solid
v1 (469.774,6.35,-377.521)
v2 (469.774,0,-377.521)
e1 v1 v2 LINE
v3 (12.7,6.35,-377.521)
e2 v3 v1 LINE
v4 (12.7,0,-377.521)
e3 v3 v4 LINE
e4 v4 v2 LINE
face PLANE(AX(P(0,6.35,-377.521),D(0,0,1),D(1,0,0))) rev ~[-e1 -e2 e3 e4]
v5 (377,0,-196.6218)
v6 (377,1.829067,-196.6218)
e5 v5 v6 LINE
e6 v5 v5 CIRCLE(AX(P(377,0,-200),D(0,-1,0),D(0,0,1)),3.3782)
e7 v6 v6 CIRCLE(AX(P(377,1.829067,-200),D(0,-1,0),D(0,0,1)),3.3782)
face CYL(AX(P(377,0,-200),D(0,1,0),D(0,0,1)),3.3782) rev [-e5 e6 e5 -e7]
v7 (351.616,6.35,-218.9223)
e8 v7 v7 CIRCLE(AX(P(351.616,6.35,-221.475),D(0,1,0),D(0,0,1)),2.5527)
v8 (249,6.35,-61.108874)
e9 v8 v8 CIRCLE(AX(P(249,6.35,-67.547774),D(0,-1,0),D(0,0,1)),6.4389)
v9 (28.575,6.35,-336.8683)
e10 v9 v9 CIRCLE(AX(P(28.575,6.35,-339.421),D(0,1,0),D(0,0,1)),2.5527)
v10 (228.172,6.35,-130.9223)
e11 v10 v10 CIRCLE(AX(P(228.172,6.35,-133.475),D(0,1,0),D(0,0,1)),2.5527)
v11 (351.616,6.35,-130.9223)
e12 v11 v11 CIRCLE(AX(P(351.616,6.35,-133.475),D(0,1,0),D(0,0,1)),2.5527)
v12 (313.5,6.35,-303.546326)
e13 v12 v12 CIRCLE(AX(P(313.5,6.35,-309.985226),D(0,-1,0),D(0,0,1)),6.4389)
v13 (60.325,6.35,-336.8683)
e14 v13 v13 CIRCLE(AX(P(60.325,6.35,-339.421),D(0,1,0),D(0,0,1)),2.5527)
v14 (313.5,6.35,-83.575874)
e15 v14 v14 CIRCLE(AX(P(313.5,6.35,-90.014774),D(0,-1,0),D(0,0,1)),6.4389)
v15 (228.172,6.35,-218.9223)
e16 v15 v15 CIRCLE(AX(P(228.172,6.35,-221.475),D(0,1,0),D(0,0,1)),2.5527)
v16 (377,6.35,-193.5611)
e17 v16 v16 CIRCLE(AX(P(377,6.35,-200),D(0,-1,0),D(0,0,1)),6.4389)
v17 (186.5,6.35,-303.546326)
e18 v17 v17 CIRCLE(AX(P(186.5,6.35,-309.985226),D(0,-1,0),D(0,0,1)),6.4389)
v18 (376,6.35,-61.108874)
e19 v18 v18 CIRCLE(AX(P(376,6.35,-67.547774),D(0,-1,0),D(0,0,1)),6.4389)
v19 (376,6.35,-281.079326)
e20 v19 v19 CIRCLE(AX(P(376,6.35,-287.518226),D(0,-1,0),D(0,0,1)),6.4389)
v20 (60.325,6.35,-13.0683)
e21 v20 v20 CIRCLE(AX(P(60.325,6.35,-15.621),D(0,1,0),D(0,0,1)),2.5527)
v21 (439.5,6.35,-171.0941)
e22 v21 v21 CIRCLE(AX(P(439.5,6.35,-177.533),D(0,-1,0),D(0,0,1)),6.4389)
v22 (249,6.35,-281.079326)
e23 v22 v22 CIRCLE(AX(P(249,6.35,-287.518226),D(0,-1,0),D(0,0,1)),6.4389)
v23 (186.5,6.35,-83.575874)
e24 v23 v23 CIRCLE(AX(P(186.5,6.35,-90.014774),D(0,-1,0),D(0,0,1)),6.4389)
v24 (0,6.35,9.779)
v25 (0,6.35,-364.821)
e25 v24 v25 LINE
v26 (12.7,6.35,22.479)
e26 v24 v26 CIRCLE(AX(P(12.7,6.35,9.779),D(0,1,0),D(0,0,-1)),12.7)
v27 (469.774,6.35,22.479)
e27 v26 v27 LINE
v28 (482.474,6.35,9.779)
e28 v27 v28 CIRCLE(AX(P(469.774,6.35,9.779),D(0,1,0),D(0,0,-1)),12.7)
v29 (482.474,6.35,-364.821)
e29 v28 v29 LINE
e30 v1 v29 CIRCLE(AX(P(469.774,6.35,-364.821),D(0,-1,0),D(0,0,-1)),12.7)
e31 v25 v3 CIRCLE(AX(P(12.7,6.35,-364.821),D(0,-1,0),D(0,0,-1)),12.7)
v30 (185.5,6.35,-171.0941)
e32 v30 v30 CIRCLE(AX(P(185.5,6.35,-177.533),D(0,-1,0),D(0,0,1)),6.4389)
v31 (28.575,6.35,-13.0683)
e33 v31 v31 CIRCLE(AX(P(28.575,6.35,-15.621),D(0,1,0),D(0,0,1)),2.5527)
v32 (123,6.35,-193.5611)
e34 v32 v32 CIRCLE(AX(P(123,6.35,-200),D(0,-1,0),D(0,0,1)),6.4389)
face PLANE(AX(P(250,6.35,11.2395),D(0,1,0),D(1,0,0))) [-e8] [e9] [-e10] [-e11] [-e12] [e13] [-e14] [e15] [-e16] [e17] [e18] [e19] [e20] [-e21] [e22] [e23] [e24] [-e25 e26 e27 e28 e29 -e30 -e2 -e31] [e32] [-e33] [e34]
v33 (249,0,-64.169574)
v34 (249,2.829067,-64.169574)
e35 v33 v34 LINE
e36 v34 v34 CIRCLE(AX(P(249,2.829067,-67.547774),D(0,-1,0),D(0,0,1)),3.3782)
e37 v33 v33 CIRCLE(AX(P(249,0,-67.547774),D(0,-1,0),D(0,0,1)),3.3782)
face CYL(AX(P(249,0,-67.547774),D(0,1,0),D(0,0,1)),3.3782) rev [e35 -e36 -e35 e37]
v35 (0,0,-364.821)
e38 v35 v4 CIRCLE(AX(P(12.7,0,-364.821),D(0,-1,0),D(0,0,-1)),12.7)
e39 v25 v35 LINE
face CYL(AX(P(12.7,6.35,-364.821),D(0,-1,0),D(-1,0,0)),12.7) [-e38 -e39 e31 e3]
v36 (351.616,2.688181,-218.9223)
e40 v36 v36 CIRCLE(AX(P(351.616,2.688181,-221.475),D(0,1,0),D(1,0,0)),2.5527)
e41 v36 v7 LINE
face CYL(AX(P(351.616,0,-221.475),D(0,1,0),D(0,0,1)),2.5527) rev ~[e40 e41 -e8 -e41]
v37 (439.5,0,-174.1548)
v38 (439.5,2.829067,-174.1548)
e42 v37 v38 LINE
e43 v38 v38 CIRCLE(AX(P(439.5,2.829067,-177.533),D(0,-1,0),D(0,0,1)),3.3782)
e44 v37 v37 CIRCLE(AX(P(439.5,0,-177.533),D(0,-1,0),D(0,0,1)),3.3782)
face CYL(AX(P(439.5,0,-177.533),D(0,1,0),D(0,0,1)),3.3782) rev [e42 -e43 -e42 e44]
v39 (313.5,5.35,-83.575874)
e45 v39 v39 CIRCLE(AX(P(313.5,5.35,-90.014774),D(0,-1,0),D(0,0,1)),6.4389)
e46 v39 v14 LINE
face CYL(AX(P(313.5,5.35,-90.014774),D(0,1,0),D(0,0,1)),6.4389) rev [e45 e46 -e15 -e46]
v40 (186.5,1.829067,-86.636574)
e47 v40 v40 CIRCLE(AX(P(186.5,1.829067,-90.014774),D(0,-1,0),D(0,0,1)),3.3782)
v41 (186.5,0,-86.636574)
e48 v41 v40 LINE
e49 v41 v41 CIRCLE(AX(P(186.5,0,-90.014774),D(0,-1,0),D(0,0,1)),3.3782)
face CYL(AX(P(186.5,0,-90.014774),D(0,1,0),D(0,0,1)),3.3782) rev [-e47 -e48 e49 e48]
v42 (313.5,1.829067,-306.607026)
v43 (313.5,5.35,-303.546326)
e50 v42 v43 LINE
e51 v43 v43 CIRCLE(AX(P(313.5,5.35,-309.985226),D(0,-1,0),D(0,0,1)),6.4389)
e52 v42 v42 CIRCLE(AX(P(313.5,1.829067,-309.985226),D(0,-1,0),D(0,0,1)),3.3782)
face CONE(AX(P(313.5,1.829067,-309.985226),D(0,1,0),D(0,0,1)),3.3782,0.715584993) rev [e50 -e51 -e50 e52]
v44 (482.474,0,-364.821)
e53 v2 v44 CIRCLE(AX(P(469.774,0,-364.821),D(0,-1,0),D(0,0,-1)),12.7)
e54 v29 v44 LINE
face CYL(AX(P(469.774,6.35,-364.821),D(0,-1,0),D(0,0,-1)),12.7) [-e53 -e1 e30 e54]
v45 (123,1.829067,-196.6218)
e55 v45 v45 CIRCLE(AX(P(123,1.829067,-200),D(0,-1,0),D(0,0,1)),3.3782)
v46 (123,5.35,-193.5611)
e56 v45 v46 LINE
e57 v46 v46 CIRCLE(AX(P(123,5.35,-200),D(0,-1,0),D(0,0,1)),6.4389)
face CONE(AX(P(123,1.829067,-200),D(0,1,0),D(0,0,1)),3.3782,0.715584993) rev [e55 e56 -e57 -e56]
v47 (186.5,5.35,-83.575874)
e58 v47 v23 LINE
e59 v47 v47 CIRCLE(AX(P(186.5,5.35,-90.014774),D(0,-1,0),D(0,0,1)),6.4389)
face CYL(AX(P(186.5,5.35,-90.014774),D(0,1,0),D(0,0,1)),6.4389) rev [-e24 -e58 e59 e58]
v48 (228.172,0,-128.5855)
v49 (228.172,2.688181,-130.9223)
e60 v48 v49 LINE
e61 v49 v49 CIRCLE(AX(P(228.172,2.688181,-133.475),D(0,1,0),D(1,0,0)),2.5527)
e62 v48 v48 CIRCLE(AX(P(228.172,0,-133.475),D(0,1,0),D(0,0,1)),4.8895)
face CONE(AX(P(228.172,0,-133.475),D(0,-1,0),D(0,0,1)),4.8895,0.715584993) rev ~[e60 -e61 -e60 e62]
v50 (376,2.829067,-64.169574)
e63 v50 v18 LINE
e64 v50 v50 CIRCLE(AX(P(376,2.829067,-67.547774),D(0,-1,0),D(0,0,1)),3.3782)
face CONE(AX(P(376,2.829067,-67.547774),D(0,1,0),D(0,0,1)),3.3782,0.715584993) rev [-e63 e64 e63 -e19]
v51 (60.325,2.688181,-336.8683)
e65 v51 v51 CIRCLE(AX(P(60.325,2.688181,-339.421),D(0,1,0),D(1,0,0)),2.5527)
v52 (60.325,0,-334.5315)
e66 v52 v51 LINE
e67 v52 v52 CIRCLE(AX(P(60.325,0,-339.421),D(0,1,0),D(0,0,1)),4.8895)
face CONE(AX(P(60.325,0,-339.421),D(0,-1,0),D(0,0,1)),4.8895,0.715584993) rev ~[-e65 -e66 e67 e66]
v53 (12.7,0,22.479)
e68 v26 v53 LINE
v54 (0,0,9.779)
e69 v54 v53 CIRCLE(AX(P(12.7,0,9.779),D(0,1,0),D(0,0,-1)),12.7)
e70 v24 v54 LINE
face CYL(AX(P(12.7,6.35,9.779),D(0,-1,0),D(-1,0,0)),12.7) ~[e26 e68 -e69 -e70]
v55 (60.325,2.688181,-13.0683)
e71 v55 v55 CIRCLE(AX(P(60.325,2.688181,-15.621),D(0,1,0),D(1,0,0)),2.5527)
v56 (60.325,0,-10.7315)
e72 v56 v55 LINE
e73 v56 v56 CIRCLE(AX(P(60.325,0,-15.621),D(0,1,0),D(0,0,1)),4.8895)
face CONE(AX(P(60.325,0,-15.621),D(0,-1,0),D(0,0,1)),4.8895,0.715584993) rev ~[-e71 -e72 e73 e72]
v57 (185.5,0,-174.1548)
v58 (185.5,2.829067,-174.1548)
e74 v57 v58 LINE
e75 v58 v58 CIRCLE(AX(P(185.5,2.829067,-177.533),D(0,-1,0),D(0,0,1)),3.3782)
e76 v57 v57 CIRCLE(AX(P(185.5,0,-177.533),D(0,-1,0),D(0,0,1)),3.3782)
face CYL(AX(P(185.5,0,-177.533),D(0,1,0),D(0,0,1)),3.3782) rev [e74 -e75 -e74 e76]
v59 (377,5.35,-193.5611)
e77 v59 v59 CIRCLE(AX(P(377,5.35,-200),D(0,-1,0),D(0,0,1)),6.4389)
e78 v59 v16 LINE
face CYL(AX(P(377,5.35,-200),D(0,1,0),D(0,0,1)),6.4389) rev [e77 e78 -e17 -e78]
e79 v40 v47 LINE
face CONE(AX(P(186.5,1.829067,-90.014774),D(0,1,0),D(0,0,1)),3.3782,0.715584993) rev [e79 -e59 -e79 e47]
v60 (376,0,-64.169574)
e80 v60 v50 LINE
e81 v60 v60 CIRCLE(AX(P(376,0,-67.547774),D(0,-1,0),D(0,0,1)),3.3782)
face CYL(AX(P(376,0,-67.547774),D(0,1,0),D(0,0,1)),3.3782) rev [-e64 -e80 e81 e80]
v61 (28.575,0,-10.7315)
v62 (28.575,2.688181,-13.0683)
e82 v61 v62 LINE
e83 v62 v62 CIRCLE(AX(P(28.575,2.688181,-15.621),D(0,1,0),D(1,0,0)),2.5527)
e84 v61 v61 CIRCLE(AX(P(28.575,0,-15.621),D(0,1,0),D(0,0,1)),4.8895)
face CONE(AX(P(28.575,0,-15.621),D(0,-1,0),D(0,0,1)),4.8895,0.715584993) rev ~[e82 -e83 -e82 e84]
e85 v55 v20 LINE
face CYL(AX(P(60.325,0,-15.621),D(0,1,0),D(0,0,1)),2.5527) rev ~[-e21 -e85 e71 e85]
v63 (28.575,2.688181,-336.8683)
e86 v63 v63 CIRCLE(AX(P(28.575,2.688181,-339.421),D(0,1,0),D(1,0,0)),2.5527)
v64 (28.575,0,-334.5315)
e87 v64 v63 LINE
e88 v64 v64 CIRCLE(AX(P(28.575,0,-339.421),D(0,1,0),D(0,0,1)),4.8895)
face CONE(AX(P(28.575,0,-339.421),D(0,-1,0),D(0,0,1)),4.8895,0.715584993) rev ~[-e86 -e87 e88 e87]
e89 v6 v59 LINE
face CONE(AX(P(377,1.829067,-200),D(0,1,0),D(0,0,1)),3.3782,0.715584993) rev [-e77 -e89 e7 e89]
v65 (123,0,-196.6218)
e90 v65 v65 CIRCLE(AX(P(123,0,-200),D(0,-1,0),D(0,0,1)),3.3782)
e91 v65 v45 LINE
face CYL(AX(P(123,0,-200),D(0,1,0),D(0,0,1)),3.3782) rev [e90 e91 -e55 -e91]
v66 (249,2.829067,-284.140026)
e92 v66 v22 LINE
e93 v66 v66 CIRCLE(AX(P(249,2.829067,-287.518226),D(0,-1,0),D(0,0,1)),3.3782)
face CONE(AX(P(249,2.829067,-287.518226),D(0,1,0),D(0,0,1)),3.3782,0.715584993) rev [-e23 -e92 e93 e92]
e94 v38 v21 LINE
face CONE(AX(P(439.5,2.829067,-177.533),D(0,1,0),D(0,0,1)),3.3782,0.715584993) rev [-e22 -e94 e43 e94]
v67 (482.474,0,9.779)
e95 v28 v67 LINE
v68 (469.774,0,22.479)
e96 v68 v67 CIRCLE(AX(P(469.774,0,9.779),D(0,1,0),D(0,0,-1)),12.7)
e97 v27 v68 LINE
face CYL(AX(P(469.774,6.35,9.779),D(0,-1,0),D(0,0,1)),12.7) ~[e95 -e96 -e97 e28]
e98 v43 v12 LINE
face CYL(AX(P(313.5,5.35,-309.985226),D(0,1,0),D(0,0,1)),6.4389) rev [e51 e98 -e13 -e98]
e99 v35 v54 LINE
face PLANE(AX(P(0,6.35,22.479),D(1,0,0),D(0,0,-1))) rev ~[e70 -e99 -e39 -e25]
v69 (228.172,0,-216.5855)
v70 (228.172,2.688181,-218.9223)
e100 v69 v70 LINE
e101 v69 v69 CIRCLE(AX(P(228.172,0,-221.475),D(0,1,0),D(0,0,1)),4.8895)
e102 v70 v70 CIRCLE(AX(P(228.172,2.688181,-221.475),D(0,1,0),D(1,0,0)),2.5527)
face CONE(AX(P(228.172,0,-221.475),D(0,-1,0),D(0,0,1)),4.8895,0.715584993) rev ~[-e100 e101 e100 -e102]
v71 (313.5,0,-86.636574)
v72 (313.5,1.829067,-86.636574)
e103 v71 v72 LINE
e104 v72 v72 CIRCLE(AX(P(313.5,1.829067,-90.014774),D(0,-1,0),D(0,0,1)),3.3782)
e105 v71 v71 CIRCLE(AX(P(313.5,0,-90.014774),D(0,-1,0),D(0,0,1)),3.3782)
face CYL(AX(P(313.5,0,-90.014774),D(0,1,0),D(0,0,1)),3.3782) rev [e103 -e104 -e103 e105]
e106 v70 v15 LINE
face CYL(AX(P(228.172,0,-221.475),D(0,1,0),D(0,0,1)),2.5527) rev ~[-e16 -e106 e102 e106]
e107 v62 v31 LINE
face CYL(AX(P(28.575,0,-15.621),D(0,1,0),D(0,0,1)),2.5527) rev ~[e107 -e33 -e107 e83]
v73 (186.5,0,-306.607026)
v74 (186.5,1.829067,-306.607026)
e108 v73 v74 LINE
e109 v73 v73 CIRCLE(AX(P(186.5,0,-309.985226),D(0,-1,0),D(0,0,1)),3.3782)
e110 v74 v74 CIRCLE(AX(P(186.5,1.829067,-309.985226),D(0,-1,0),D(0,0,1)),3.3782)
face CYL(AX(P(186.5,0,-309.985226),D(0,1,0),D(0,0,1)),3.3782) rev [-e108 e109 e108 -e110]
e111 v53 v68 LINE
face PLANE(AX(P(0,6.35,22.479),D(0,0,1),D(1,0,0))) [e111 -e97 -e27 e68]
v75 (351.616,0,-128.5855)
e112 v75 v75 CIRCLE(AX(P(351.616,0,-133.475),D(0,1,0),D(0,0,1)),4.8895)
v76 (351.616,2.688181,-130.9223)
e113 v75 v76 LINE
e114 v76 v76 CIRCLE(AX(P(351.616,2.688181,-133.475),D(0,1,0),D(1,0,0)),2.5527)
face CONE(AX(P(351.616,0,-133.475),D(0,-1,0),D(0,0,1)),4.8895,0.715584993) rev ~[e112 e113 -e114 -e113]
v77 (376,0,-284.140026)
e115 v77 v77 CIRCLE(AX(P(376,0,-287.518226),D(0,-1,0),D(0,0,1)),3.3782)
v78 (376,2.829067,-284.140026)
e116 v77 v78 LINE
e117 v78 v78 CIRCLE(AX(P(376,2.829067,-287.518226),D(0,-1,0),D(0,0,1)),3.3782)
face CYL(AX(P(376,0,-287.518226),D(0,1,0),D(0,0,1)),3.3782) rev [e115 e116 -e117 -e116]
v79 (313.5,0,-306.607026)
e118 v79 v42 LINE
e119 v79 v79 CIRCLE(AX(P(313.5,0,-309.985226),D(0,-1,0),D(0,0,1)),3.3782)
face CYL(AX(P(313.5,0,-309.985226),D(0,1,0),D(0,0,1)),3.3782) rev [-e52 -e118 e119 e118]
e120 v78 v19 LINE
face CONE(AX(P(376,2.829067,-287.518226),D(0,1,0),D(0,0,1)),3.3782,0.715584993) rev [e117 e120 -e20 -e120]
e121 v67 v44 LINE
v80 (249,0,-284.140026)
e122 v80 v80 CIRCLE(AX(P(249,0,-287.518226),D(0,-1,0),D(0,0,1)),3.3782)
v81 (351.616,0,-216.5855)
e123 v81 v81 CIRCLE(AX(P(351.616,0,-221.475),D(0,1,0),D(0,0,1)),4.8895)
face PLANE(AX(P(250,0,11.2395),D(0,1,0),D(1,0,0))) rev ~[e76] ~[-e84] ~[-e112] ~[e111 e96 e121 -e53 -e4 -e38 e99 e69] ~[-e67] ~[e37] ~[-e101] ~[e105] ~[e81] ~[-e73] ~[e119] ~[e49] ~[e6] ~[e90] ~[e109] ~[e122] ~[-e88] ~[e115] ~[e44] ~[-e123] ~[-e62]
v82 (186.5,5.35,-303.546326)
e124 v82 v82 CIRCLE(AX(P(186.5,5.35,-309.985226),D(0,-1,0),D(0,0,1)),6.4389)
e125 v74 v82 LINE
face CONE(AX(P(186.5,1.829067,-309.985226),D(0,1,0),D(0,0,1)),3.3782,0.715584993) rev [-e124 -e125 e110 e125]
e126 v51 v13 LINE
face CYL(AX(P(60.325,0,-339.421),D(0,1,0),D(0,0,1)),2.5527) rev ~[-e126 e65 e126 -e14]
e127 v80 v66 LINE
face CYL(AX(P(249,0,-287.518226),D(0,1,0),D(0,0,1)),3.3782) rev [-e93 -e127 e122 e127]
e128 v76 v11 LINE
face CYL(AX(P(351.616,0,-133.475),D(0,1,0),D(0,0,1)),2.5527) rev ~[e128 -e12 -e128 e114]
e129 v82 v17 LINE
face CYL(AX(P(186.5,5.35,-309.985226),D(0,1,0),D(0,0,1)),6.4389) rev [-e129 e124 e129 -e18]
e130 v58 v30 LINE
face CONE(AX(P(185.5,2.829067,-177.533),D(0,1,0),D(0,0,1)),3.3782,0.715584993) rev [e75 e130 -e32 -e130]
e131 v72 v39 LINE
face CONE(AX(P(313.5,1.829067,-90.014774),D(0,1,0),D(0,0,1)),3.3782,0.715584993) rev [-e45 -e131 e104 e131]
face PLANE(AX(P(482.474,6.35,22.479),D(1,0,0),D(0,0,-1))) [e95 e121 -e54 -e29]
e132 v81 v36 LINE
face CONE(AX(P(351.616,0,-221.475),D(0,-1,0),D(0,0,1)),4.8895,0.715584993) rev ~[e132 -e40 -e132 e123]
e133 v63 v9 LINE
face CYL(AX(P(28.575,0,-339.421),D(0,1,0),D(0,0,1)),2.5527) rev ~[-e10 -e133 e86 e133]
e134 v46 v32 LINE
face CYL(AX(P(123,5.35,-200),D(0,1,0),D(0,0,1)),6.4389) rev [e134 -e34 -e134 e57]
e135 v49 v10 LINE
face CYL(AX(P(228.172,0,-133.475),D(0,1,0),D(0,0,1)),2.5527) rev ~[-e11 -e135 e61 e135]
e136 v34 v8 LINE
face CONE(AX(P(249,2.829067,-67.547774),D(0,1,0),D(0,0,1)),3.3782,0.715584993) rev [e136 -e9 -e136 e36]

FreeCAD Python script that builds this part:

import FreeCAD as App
import Part
import Sketcher

V = App.Vector
Q = App.Units.Quantity


def edges_at(feature, points):
    """Names of the edges that pass closest to the given points."""
    edges = feature.Shape.Edges
    near = lambda p: min(range(len(edges)), key=lambda i: edges[i].distToShape(Part.Vertex(*p))[0])
    return sorted({f"Edge{near(p) + 1}" for p in points})

doc = App.newDocument("Part")
body = doc.addObject("PartDesign::Body", "Body")

sketch1 = body.newObject("Sketcher::SketchObject", "Sketch")
sketch1.AttachmentSupport = (doc.getObject("XZ_Plane"), [""])
sketch1.MapMode = "FlatFace"
sketch1.addGeometry(Part.LineSegment(V(0, -400, 0), V(0, 0, 0)), False)
sketch1.addGeometry(Part.LineSegment(V(0, 0, 0), V(500, 0, 0)), False)
sketch1.addGeometry(Part.LineSegment(V(500, 0, 0), V(500, -400, 0)), False)
sketch1.addGeometry(Part.LineSegment(V(500, -400, 0), V(0, -400, 0)), False)
sketch1.addConstraint(Sketcher.Constraint("Coincident", 0, 2, 1, 1))
sketch1.addConstraint(Sketcher.Constraint("Coincident", 1, 2, 2, 1))
sketch1.addConstraint(Sketcher.Constraint("Coincident", 2, 2, 3, 1))
sketch1.addConstraint(Sketcher.Constraint("Coincident", 3, 2, 0, 1))
sketch1.addConstraint(Sketcher.Constraint("Vertical", 0))
sketch1.addConstraint(Sketcher.Constraint("Horizontal", 1))
sketch1.addConstraint(Sketcher.Constraint("Vertical", 2))
sketch1.addConstraint(Sketcher.Constraint("Horizontal", 3))
sketch1.addConstraint(Sketcher.Constraint("Coincident", 0, 2, -1, 1))
sketch1.addConstraint(Sketcher.Constraint("DistanceX", 1, 1, 1, 2, 500.0))
sketch1.addConstraint(Sketcher.Constraint("DistanceY", 0, 1, 0, 2, 400.0))
pad1 = body.newObject("PartDesign::Pad", "Pad")
pad1.Profile = sketch1
pad1.Length = Q("0.25 in")
pad1.Reversed = True

sketch2 = body.newObject("Sketcher::SketchObject", "Sketch001")
sketch2.AttachmentSupport = (doc.getObject("YZ_Plane"), [""])
sketch2.MapMode = "FlatFace"
sketch2.AttachmentOffset = App.Placement(V(0, 0, 313.5), App.Rotation())
sketch2.addGeometry(Part.LineSegment(V(0, -310, 0), V(6.3, -310, 0)), False)
sketch2.addGeometry(Part.LineSegment(V(6.3, -310, 0), V(6.3, -303.5, 0)), False)
sketch2.addGeometry(Part.LineSegment(V(6.3, -303.5, 0), V(5.3, -303.5, 0)), False)
sketch2.addGeometry(Part.LineSegment(V(5.3, -303.5, 0), V(1.8, -306.6, 0)), False)
sketch2.addGeometry(Part.LineSegment(V(1.8, -306.6, 0), V(0, -306.6, 0)), False)
sketch2.addGeometry(Part.LineSegment(V(0, -306.6, 0), V(0, -310, 0)), False)
sketch2.addGeometry(Part.LineSegment(V(6.3, -310, 0), V(0, -310, 0)), True)
sketch2.addConstraint(Sketcher.Constraint("Coincident", 0, 2, 1, 1))
sketch2.addConstraint(Sketcher.Constraint("Coincident", 1, 2, 2, 1))
sketch2.addConstraint(Sketcher.Constraint("Coincident", 2, 2, 3, 1))
sketch2.addConstraint(Sketcher.Constraint("Coincident", 3, 2, 4, 1))
sketch2.addConstraint(Sketcher.Constraint("Coincident", 4, 2, 5, 1))
sketch2.addConstraint(Sketcher.Constraint("Coincident", 5, 2, 0, 1))
sketch2.addConstraint(Sketcher.Constraint("Horizontal", 0))
sketch2.addConstraint(Sketcher.Constraint("Vertical", 1))
sketch2.addConstraint(Sketcher.Constraint("Horizontal", 2))
sketch2.addConstraint(Sketcher.Constraint("Horizontal", 4))
sketch2.addConstraint(Sketcher.Constraint("Vertical", 5))
sketch2.addConstraint(Sketcher.Constraint("Horizontal", 6))
sketch2.addConstraint(Sketcher.Constraint("Coincident", 6, 1, 0, 2))
sketch2.addConstraint(Sketcher.Constraint("PointOnObject", 4, 2, -2))
sketch2.addConstraint(Sketcher.Constraint("PointOnObject", 6, 2, -2))
sketch2.addConstraint(Sketcher.Constraint("Angle", 3, Q("-139 deg")))
sketch2.addConstraint(Sketcher.Constraint("DistanceX", 0, 1, 0, 2, Q("0.25 in")))
sketch2.addConstraint(Sketcher.Constraint("DistanceY", 5, 2, 5, 1, Q("0.133 in")))
sketch2.addConstraint(Sketcher.Constraint("DistanceY", 1, 1, 1, 2, Q("0.2535 in")))
sketch2.addConstraint(Sketcher.Constraint("DistanceX", 2, 2, 2, 1, 1.0))
sketch2.addConstraint(Sketcher.Constraint("DistanceY", 0, 2, -1, 1, 309.985226))
groove = body.newObject("PartDesign::Groove", "Groove")
groove.Profile = sketch2
groove.ReferenceAxis = (sketch2, ["Axis0"])
groove.Angle = 360
doc.recompute()

linearpattern = body.newObject("PartDesign::LinearPattern", "LinearPattern")
linearpattern.Originals = [groove]
linearpattern.Direction = (doc.getObject("X_Axis"), [""])
linearpattern.Mode = "offset"
linearpattern.Offset = Q("5 in")
linearpattern.Occurrences = 2
linearpattern.Reversed = True
body.Tip = linearpattern
doc.recompute()

datumline = body.newObject("PartDesign::Line", "DatumLine")
datumline.Placement = App.Placement(V(0, 0, 0), App.Rotation(V(0, 0, 1), V(-0.866025404, 0, 0.5)))
linearpattern2 = body.newObject("PartDesign::LinearPattern", "LinearPattern001")
linearpattern2.Originals = [groove]
linearpattern2.Direction = (datumline, [""])
linearpattern2.Mode = "offset"
linearpattern2.Offset = 219.970453
linearpattern2.Occurrences = 2
body.Tip = linearpattern2
doc.recompute()

datumline2 = body.newObject("PartDesign::Line", "DatumLine001")
datumline2.Placement = App.Placement(V(0, 0, 0), App.Rotation(V(0, 0, 1), V(-0.5, 0, 0.866025404)))
linearpattern3 = body.newObject("PartDesign::LinearPattern", "LinearPattern002")
linearpattern3.Originals = [groove]
linearpattern3.Direction = (datumline2, [""])
linearpattern3.Mode = "offset"
linearpattern3.Offset = Q("10 in")
linearpattern3.Occurrences = 2
body.Tip = linearpattern3
doc.recompute()

linearpattern4 = body.newObject("PartDesign::LinearPattern", "LinearPattern003")
linearpattern4.Originals = [groove]
linearpattern4.Direction = (doc.getObject("Z_Axis"), [""])
linearpattern4.Mode = "offset"
linearpattern4.Offset = 219.970453
linearpattern4.Occurrences = 2
body.Tip = linearpattern4
doc.recompute()

datumline3 = body.newObject("PartDesign::Line", "DatumLine002")
datumline3.Placement = App.Placement(V(0, 0, 0), App.Rotation(V(0, 0, 1), V(0.5, 0, 0.866025404)))
linearpattern5 = body.newObject("PartDesign::LinearPattern", "LinearPattern004")
linearpattern5.Originals = [groove]
linearpattern5.Direction = (datumline3, [""])
linearpattern5.Mode = "offset"
linearpattern5.Offset = Q("5 in")
linearpattern5.Occurrences = 2
body.Tip = linearpattern5

sketch3 = body.newObject("Sketcher::SketchObject", "Sketch002")
sketch3.AttachmentSupport = (doc.getObject("XZ_Plane"), [""])
sketch3.MapMode = "FlatFace"
sketch3.addGeometry(Part.Circle(V(351.6, -133.5, 0), V(0, 0, 1), 2.6), False)
sketch3.addGeometry(Part.Circle(V(351.6, -221.5, 0), V(0, 0, 1), 2.6), False)
sketch3.addGeometry(Part.Circle(V(228.2, -221.5, 0), V(0, 0, 1), 2.6), False)
sketch3.addGeometry(Part.Circle(V(228.2, -133.5, 0), V(0, 0, 1), 2.6), False)
sketch3.addConstraint(Sketcher.Constraint("Equal", 0, 1))
sketch3.addConstraint(Sketcher.Constraint("Equal", 1, 2))
sketch3.addConstraint(Sketcher.Constraint("Equal", 2, 3))
sketch3.addConstraint(Sketcher.Constraint("Horizontal", 1, 3, 2, 3))
sketch3.addConstraint(Sketcher.Constraint("Horizontal", 0, 3, 3, 3))
sketch3.addConstraint(Sketcher.Constraint("Vertical", 0, 3, 1, 3))
sketch3.addConstraint(Sketcher.Constraint("Vertical", 2, 3, 3, 3))
sketch3.addConstraint(Sketcher.Constraint("Diameter", 0, Q("0.201 in")))
sketch3.addConstraint(Sketcher.Constraint("DistanceX", 2, 3, 1, 3, Q("4.86 in")))
sketch3.addConstraint(Sketcher.Constraint("DistanceX", -1, 1, 0, 3, 351.616))
sketch3.addConstraint(Sketcher.Constraint("DistanceY", 0, 3, -1, 1, 133.475))
sketch3.addConstraint(Sketcher.Constraint("DistanceY", 1, 3, -1, 1, 221.475))
doc.recompute()
hole = body.newObject("PartDesign::Hole", "Hole")
hole.Profile = sketch3
hole.ThreadType = "None"
hole.Diameter = Q("0.201 in")
hole.DepthType = "ThroughAll"
hole.HoleCutType = "Countersink"
hole.HoleCutDiameter = Q("0.385 in")
hole.HoleCutCountersinkAngle = 82

sketch4 = body.newObject("Sketcher::SketchObject", "Sketch003")
sketch4.AttachmentSupport = (doc.getObject("XZ_Plane"), [""])
sketch4.MapMode = "FlatFace"
sketch4.AttachmentOffset = App.Placement(V(0, 0, -0.25 * 25.4), App.Rotation())
sketch4.addGeometry(Part.LineSegment(V(0, -400, 0), V(0, -378, 0)), False)
sketch4.addGeometry(Part.LineSegment(V(0, -378, 0), V(500, -378, 0)), False)
sketch4.addGeometry(Part.LineSegment(V(500, -378, 0), V(500, -400, 0)), False)
sketch4.addGeometry(Part.LineSegment(V(500, -400, 0), V(0, -400, 0)), False)
sketch4.addConstraint(Sketcher.Constraint("Coincident", 0, 2, 1, 1))
sketch4.addConstraint(Sketcher.Constraint("Coincident", 1, 2, 2, 1))
sketch4.addConstraint(Sketcher.Constraint("Coincident", 2, 2, 3, 1))
sketch4.addConstraint(Sketcher.Constraint("Coincident", 3, 2, 0, 1))
sketch4.addConstraint(Sketcher.Constraint("Vertical", 0))
sketch4.addConstraint(Sketcher.Constraint("Horizontal", 1))
sketch4.addConstraint(Sketcher.Constraint("Vertical", 2))
sketch4.addConstraint(Sketcher.Constraint("Horizontal", 3))
sketch4.addConstraint(Sketcher.Constraint("PointOnObject", 0, 2, -2))
sketch4.addConstraint(Sketcher.Constraint("DistanceY", 0, 1, 0, 2, Q("0.885 in")))
sketch4.addConstraint(Sketcher.Constraint("DistanceX", 1, 1, 1, 2, 500.0))
sketch4.addConstraint(Sketcher.Constraint("DistanceY", 0, 2, -1, 1, 377.521))
pocket1 = body.newObject("PartDesign::Pocket", "Pocket")
pocket1.Profile = sketch4
pocket1.Length = Q("0.25 in")
pocket1.Reversed = True

sketch5 = body.newObject("Sketcher::SketchObject", "Sketch004")
sketch5.AttachmentSupport = (doc.getObject("XZ_Plane"), [""])
sketch5.MapMode = "FlatFace"
sketch5.AttachmentOffset = App.Placement(V(0, 0, -0.25 * 25.4), App.Rotation())
sketch5.addGeometry(Part.LineSegment(V(0, 0, 0), V(0, 22, 0)), False)
sketch5.addGeometry(Part.LineSegment(V(0, 22, 0), V(500, 22, 0)), False)
sketch5.addGeometry(Part.LineSegment(V(500, 22, 0), V(500, 0, 0)), False)
sketch5.addGeometry(Part.LineSegment(V(500, 0, 0), V(0, 0, 0)), False)
sketch5.addConstraint(Sketcher.Constraint("Coincident", 0, 2, 1, 1))
sketch5.addConstraint(Sketcher.Constraint("Coincident", 1, 2, 2, 1))
sketch5.addConstraint(Sketcher.Constraint("Coincident", 2, 2, 3, 1))
sketch5.addConstraint(Sketcher.Constraint("Coincident", 3, 2, 0, 1))
sketch5.addConstraint(Sketcher.Constraint("Vertical", 0))
sketch5.addConstraint(Sketcher.Constraint("Horizontal", 1))
sketch5.addConstraint(Sketcher.Constraint("Vertical", 2))
sketch5.addConstraint(Sketcher.Constraint("Horizontal", 3))
sketch5.addConstraint(Sketcher.Constraint("Coincident", 3, 2, -1, 1))
sketch5.addConstraint(Sketcher.Constraint("DistanceY", 0, 1, 0, 2, Q("0.885 in")))
sketch5.addConstraint(Sketcher.Constraint("DistanceX", 1, 1, 1, 2, 500.0))
pad2 = body.newObject("PartDesign::Pad", "Pad001")
pad2.Profile = sketch5
pad2.Length = Q("0.25 in")

sketch6 = body.newObject("Sketcher::SketchObject", "Sketch005")
sketch6.AttachmentSupport = (doc.getObject("XZ_Plane"), [""])
sketch6.MapMode = "FlatFace"
sketch6.addGeometry(Part.Circle(V(60.3, -15.6, 0), V(0, 0, 1), 2.6), False)
sketch6.addGeometry(Part.Circle(V(28.6, -15.6, 0), V(0, 0, 1), 2.6), False)
sketch6.addGeometry(Part.Circle(V(60.3, -339.4, 0), V(0, 0, 1), 2.6), False)
sketch6.addGeometry(Part.Circle(V(28.6, -339.4, 0), V(0, 0, 1), 2.6), False)
sketch6.addConstraint(Sketcher.Constraint("Equal", 0, 1))
sketch6.addConstraint(Sketcher.Constraint("Equal", 1, 2))
sketch6.addConstraint(Sketcher.Constraint("Equal", 2, 3))
sketch6.addConstraint(Sketcher.Constraint("Horizontal", 0, 3, 1, 3))
sketch6.addConstraint(Sketcher.Constraint("Horizontal", 2, 3, 3, 3))
sketch6.addConstraint(Sketcher.Constraint("Vertical", 0, 3, 2, 3))
sketch6.addConstraint(Sketcher.Constraint("Vertical", 1, 3, 3, 3))
sketch6.addConstraint(Sketcher.Constraint("Diameter", 0, Q("0.201 in")))
sketch6.addConstraint(Sketcher.Constraint("DistanceX", 1, 3, 0, 3, Q("1.25 in")))
sketch6.addConstraint(Sketcher.Constraint("DistanceX", -1, 1, 0, 3, Q("2.375 in")))
sketch6.addConstraint(Sketcher.Constraint("DistanceY", 0, 3, -1, 1, Q("0.615 in")))
sketch6.addConstraint(Sketcher.Constraint("DistanceY", 2, 3, -1, 1, 339.421))
doc.recompute()
hole2 = body.newObject("PartDesign::Hole", "Hole001")
hole2.Profile = sketch6
hole2.ThreadType = "None"
hole2.Diameter = Q("0.201 in")
hole2.DepthType = "ThroughAll"
hole2.HoleCutType = "Countersink"
hole2.HoleCutDiameter = Q("0.385 in")
hole2.HoleCutCountersinkAngle = 82

sketch7 = body.newObject("Sketcher::SketchObject", "Sketch006")
sketch7.AttachmentSupport = (doc.getObject("XZ_Plane"), [""])
sketch7.MapMode = "FlatFace"
sketch7.AttachmentOffset = App.Placement(V(0, 0, -0.25 * 25.4), App.Rotation())
sketch7.addGeometry(Part.LineSegment(V(482, -378, 0), V(482, 22, 0)), False)
sketch7.addGeometry(Part.LineSegment(V(482, 22, 0), V(500, 22, 0)), False)
sketch7.addGeometry(Part.LineSegment(V(500, 22, 0), V(500, -378, 0)), False)
sketch7.addGeometry(Part.LineSegment(V(500, -378, 0), V(482, -378, 0)), False)
sketch7.addConstraint(Sketcher.Constraint("Coincident", 0, 2, 1, 1))
sketch7.addConstraint(Sketcher.Constraint("Coincident", 1, 2, 2, 1))
sketch7.addConstraint(Sketcher.Constraint("Coincident", 2, 2, 3, 1))
sketch7.addConstraint(Sketcher.Constraint("Coincident", 3, 2, 0, 1))
sketch7.addConstraint(Sketcher.Constraint("Vertical", 0))
sketch7.addConstraint(Sketcher.Constraint("Horizontal", 1))
sketch7.addConstraint(Sketcher.Constraint("Vertical", 2))
sketch7.addConstraint(Sketcher.Constraint("Horizontal", 3))
sketch7.addConstraint(Sketcher.Constraint("DistanceX", 1, 1, 1, 2, Q("0.69 in")))
sketch7.addConstraint(Sketcher.Constraint("DistanceY", -1, 1, 0, 2, Q("0.885 in")))
sketch7.addConstraint(Sketcher.Constraint("DistanceY", 0, 1, 0, 2, 400.0))
sketch7.addConstraint(Sketcher.Constraint("DistanceX", -1, 1, 0, 2, 482.474))
pocket2 = body.newObject("PartDesign::Pocket", "Pocket001")
pocket2.Profile = sketch7
pocket2.Length = 10
pocket2.Reversed = True
doc.recompute()

fillet = body.newObject("PartDesign::Fillet", "Fillet")
fillet.Base = (pocket2, edges_at(pocket2, [
    (0, 3.175, 22.479),
    (482.474, 3.175, 22.479),
    (482.474, 3.175, -377.521),
    (0, 3.175, -377.521),
]))
fillet.Radius = Q("0.5 in")

sketch8 = body.newObject("Sketcher::SketchObject", "Sketch007")
sketch8.AttachmentSupport = (doc.getObject("YZ_Plane"), [""])
sketch8.MapMode = "FlatFace"
sketch8.AttachmentOffset = App.Placement(V(0, 0, 249), App.Rotation())
sketch8.addGeometry(Part.LineSegment(V(0, -287.5, 0), V(6.3, -287.5, 0)), False)
sketch8.addGeometry(Part.LineSegment(V(6.3, -287.5, 0), V(6.3, -281.1, 0)), False)
sketch8.addGeometry(Part.LineSegment(V(6.3, -281.1, 0), V(2.8, -284.1, 0)), False)
sketch8.addGeometry(Part.LineSegment(V(2.8, -284.1, 0), V(0, -284.1, 0)), False)
sketch8.addGeometry(Part.LineSegment(V(0, -284.1, 0), V(0, -287.5, 0)), False)
sketch8.addGeometry(Part.LineSegment(V(6.3, -287.5, 0), V(0, -287.5, 0)), True)
sketch8.addConstraint(Sketcher.Constraint("Coincident", 0, 2, 1, 1))
sketch8.addConstraint(Sketcher.Constraint("Coincident", 1, 2, 2, 1))
sketch8.addConstraint(Sketcher.Constraint("Coincident", 2, 2, 3, 1))
sketch8.addConstraint(Sketcher.Constraint("Coincident", 3, 2, 4, 1))
sketch8.addConstraint(Sketcher.Constraint("Coincident", 4, 2, 0, 1))
sketch8.addConstraint(Sketcher.Constraint("Horizontal", 0))
sketch8.addConstraint(Sketcher.Constraint("Vertical", 1))
sketch8.addConstraint(Sketcher.Constraint("Horizontal", 3))
sketch8.addConstraint(Sketcher.Constraint("Vertical", 4))
sketch8.addConstraint(Sketcher.Constraint("Horizontal", 5))
sketch8.addConstraint(Sketcher.Constraint("Coincident", 5, 1, 0, 2))
sketch8.addConstraint(Sketcher.Constraint("PointOnObject", 3, 2, -2))
sketch8.addConstraint(Sketcher.Constraint("PointOnObject", 5, 2, -2))
sketch8.addConstraint(Sketcher.Constraint("Angle", 2, Q("-139 deg")))
sketch8.addConstraint(Sketcher.Constraint("DistanceX", 0, 1, 0, 2, Q("0.25 in")))
sketch8.addConstraint(Sketcher.Constraint("DistanceY", 4, 2, 4, 1, Q("0.133 in")))
sketch8.addConstraint(Sketcher.Constraint("DistanceY", 1, 1, 1, 2, Q("0.2535 in")))
sketch8.addConstraint(Sketcher.Constraint("DistanceY", 0, 2, -1, 1, 287.518226))
groove2 = body.newObject("PartDesign::Groove", "Groove001")
groove2.Profile = sketch8
groove2.ReferenceAxis = (sketch8, ["Axis0"])
groove2.Angle = 360
doc.recompute()

linearpattern6 = body.newObject("PartDesign::LinearPattern", "LinearPattern005")
linearpattern6.Originals = [groove2]
linearpattern6.Direction = (doc.getObject("X_Axis"), [""])
linearpattern6.Mode = "offset"
linearpattern6.Offset = Q("5 in")
linearpattern6.Occurrences = 2
body.Tip = linearpattern6
doc.recompute()

datumline4 = body.newObject("PartDesign::Line", "DatumLine003")
datumline4.Placement = App.Placement(V(0, 0, 0), App.Rotation(V(0, 0, 1), V(0.866025404, 0, 0.5)))
linearpattern7 = body.newObject("PartDesign::LinearPattern", "LinearPattern006")
linearpattern7.Originals = [groove2]
linearpattern7.Direction = (datumline4, [""])
linearpattern7.Mode = "offset"
linearpattern7.Offset = 219.970453
linearpattern7.Occurrences = 2
body.Tip = linearpattern7
doc.recompute()

datumline5 = body.newObject("PartDesign::Line", "DatumLine004")
datumline5.Placement = App.Placement(V(0, 0, 0), App.Rotation(V(0, 0, 1), V(0.5, 0, 0.866025404)))
linearpattern8 = body.newObject("PartDesign::LinearPattern", "LinearPattern007")
linearpattern8.Originals = [groove2]
linearpattern8.Direction = (datumline5, [""])
linearpattern8.Mode = "offset"
linearpattern8.Offset = Q("10 in")
linearpattern8.Occurrences = 2
body.Tip = linearpattern8
doc.recompute()

linearpattern9 = body.newObject("PartDesign::LinearPattern", "LinearPattern008")
linearpattern9.Originals = [groove2]
linearpattern9.Direction = (doc.getObject("Z_Axis"), [""])
linearpattern9.Mode = "offset"
linearpattern9.Offset = 219.970453
linearpattern9.Occurrences = 2
body.Tip = linearpattern9
doc.recompute()

datumline6 = body.newObject("PartDesign::Line", "DatumLine005")
datumline6.Placement = App.Placement(V(0, 0, 0), App.Rotation(V(0, 0, 1), V(-0.5, 0, 0.866025404)))
linearpattern10 = body.newObject("PartDesign::LinearPattern", "LinearPattern009")
linearpattern10.Originals = [groove2]
linearpattern10.Direction = (datumline6, [""])
linearpattern10.Mode = "offset"
linearpattern10.Offset = Q("5 in")
linearpattern10.Occurrences = 2
body.Tip = linearpattern10

doc.recompute()
